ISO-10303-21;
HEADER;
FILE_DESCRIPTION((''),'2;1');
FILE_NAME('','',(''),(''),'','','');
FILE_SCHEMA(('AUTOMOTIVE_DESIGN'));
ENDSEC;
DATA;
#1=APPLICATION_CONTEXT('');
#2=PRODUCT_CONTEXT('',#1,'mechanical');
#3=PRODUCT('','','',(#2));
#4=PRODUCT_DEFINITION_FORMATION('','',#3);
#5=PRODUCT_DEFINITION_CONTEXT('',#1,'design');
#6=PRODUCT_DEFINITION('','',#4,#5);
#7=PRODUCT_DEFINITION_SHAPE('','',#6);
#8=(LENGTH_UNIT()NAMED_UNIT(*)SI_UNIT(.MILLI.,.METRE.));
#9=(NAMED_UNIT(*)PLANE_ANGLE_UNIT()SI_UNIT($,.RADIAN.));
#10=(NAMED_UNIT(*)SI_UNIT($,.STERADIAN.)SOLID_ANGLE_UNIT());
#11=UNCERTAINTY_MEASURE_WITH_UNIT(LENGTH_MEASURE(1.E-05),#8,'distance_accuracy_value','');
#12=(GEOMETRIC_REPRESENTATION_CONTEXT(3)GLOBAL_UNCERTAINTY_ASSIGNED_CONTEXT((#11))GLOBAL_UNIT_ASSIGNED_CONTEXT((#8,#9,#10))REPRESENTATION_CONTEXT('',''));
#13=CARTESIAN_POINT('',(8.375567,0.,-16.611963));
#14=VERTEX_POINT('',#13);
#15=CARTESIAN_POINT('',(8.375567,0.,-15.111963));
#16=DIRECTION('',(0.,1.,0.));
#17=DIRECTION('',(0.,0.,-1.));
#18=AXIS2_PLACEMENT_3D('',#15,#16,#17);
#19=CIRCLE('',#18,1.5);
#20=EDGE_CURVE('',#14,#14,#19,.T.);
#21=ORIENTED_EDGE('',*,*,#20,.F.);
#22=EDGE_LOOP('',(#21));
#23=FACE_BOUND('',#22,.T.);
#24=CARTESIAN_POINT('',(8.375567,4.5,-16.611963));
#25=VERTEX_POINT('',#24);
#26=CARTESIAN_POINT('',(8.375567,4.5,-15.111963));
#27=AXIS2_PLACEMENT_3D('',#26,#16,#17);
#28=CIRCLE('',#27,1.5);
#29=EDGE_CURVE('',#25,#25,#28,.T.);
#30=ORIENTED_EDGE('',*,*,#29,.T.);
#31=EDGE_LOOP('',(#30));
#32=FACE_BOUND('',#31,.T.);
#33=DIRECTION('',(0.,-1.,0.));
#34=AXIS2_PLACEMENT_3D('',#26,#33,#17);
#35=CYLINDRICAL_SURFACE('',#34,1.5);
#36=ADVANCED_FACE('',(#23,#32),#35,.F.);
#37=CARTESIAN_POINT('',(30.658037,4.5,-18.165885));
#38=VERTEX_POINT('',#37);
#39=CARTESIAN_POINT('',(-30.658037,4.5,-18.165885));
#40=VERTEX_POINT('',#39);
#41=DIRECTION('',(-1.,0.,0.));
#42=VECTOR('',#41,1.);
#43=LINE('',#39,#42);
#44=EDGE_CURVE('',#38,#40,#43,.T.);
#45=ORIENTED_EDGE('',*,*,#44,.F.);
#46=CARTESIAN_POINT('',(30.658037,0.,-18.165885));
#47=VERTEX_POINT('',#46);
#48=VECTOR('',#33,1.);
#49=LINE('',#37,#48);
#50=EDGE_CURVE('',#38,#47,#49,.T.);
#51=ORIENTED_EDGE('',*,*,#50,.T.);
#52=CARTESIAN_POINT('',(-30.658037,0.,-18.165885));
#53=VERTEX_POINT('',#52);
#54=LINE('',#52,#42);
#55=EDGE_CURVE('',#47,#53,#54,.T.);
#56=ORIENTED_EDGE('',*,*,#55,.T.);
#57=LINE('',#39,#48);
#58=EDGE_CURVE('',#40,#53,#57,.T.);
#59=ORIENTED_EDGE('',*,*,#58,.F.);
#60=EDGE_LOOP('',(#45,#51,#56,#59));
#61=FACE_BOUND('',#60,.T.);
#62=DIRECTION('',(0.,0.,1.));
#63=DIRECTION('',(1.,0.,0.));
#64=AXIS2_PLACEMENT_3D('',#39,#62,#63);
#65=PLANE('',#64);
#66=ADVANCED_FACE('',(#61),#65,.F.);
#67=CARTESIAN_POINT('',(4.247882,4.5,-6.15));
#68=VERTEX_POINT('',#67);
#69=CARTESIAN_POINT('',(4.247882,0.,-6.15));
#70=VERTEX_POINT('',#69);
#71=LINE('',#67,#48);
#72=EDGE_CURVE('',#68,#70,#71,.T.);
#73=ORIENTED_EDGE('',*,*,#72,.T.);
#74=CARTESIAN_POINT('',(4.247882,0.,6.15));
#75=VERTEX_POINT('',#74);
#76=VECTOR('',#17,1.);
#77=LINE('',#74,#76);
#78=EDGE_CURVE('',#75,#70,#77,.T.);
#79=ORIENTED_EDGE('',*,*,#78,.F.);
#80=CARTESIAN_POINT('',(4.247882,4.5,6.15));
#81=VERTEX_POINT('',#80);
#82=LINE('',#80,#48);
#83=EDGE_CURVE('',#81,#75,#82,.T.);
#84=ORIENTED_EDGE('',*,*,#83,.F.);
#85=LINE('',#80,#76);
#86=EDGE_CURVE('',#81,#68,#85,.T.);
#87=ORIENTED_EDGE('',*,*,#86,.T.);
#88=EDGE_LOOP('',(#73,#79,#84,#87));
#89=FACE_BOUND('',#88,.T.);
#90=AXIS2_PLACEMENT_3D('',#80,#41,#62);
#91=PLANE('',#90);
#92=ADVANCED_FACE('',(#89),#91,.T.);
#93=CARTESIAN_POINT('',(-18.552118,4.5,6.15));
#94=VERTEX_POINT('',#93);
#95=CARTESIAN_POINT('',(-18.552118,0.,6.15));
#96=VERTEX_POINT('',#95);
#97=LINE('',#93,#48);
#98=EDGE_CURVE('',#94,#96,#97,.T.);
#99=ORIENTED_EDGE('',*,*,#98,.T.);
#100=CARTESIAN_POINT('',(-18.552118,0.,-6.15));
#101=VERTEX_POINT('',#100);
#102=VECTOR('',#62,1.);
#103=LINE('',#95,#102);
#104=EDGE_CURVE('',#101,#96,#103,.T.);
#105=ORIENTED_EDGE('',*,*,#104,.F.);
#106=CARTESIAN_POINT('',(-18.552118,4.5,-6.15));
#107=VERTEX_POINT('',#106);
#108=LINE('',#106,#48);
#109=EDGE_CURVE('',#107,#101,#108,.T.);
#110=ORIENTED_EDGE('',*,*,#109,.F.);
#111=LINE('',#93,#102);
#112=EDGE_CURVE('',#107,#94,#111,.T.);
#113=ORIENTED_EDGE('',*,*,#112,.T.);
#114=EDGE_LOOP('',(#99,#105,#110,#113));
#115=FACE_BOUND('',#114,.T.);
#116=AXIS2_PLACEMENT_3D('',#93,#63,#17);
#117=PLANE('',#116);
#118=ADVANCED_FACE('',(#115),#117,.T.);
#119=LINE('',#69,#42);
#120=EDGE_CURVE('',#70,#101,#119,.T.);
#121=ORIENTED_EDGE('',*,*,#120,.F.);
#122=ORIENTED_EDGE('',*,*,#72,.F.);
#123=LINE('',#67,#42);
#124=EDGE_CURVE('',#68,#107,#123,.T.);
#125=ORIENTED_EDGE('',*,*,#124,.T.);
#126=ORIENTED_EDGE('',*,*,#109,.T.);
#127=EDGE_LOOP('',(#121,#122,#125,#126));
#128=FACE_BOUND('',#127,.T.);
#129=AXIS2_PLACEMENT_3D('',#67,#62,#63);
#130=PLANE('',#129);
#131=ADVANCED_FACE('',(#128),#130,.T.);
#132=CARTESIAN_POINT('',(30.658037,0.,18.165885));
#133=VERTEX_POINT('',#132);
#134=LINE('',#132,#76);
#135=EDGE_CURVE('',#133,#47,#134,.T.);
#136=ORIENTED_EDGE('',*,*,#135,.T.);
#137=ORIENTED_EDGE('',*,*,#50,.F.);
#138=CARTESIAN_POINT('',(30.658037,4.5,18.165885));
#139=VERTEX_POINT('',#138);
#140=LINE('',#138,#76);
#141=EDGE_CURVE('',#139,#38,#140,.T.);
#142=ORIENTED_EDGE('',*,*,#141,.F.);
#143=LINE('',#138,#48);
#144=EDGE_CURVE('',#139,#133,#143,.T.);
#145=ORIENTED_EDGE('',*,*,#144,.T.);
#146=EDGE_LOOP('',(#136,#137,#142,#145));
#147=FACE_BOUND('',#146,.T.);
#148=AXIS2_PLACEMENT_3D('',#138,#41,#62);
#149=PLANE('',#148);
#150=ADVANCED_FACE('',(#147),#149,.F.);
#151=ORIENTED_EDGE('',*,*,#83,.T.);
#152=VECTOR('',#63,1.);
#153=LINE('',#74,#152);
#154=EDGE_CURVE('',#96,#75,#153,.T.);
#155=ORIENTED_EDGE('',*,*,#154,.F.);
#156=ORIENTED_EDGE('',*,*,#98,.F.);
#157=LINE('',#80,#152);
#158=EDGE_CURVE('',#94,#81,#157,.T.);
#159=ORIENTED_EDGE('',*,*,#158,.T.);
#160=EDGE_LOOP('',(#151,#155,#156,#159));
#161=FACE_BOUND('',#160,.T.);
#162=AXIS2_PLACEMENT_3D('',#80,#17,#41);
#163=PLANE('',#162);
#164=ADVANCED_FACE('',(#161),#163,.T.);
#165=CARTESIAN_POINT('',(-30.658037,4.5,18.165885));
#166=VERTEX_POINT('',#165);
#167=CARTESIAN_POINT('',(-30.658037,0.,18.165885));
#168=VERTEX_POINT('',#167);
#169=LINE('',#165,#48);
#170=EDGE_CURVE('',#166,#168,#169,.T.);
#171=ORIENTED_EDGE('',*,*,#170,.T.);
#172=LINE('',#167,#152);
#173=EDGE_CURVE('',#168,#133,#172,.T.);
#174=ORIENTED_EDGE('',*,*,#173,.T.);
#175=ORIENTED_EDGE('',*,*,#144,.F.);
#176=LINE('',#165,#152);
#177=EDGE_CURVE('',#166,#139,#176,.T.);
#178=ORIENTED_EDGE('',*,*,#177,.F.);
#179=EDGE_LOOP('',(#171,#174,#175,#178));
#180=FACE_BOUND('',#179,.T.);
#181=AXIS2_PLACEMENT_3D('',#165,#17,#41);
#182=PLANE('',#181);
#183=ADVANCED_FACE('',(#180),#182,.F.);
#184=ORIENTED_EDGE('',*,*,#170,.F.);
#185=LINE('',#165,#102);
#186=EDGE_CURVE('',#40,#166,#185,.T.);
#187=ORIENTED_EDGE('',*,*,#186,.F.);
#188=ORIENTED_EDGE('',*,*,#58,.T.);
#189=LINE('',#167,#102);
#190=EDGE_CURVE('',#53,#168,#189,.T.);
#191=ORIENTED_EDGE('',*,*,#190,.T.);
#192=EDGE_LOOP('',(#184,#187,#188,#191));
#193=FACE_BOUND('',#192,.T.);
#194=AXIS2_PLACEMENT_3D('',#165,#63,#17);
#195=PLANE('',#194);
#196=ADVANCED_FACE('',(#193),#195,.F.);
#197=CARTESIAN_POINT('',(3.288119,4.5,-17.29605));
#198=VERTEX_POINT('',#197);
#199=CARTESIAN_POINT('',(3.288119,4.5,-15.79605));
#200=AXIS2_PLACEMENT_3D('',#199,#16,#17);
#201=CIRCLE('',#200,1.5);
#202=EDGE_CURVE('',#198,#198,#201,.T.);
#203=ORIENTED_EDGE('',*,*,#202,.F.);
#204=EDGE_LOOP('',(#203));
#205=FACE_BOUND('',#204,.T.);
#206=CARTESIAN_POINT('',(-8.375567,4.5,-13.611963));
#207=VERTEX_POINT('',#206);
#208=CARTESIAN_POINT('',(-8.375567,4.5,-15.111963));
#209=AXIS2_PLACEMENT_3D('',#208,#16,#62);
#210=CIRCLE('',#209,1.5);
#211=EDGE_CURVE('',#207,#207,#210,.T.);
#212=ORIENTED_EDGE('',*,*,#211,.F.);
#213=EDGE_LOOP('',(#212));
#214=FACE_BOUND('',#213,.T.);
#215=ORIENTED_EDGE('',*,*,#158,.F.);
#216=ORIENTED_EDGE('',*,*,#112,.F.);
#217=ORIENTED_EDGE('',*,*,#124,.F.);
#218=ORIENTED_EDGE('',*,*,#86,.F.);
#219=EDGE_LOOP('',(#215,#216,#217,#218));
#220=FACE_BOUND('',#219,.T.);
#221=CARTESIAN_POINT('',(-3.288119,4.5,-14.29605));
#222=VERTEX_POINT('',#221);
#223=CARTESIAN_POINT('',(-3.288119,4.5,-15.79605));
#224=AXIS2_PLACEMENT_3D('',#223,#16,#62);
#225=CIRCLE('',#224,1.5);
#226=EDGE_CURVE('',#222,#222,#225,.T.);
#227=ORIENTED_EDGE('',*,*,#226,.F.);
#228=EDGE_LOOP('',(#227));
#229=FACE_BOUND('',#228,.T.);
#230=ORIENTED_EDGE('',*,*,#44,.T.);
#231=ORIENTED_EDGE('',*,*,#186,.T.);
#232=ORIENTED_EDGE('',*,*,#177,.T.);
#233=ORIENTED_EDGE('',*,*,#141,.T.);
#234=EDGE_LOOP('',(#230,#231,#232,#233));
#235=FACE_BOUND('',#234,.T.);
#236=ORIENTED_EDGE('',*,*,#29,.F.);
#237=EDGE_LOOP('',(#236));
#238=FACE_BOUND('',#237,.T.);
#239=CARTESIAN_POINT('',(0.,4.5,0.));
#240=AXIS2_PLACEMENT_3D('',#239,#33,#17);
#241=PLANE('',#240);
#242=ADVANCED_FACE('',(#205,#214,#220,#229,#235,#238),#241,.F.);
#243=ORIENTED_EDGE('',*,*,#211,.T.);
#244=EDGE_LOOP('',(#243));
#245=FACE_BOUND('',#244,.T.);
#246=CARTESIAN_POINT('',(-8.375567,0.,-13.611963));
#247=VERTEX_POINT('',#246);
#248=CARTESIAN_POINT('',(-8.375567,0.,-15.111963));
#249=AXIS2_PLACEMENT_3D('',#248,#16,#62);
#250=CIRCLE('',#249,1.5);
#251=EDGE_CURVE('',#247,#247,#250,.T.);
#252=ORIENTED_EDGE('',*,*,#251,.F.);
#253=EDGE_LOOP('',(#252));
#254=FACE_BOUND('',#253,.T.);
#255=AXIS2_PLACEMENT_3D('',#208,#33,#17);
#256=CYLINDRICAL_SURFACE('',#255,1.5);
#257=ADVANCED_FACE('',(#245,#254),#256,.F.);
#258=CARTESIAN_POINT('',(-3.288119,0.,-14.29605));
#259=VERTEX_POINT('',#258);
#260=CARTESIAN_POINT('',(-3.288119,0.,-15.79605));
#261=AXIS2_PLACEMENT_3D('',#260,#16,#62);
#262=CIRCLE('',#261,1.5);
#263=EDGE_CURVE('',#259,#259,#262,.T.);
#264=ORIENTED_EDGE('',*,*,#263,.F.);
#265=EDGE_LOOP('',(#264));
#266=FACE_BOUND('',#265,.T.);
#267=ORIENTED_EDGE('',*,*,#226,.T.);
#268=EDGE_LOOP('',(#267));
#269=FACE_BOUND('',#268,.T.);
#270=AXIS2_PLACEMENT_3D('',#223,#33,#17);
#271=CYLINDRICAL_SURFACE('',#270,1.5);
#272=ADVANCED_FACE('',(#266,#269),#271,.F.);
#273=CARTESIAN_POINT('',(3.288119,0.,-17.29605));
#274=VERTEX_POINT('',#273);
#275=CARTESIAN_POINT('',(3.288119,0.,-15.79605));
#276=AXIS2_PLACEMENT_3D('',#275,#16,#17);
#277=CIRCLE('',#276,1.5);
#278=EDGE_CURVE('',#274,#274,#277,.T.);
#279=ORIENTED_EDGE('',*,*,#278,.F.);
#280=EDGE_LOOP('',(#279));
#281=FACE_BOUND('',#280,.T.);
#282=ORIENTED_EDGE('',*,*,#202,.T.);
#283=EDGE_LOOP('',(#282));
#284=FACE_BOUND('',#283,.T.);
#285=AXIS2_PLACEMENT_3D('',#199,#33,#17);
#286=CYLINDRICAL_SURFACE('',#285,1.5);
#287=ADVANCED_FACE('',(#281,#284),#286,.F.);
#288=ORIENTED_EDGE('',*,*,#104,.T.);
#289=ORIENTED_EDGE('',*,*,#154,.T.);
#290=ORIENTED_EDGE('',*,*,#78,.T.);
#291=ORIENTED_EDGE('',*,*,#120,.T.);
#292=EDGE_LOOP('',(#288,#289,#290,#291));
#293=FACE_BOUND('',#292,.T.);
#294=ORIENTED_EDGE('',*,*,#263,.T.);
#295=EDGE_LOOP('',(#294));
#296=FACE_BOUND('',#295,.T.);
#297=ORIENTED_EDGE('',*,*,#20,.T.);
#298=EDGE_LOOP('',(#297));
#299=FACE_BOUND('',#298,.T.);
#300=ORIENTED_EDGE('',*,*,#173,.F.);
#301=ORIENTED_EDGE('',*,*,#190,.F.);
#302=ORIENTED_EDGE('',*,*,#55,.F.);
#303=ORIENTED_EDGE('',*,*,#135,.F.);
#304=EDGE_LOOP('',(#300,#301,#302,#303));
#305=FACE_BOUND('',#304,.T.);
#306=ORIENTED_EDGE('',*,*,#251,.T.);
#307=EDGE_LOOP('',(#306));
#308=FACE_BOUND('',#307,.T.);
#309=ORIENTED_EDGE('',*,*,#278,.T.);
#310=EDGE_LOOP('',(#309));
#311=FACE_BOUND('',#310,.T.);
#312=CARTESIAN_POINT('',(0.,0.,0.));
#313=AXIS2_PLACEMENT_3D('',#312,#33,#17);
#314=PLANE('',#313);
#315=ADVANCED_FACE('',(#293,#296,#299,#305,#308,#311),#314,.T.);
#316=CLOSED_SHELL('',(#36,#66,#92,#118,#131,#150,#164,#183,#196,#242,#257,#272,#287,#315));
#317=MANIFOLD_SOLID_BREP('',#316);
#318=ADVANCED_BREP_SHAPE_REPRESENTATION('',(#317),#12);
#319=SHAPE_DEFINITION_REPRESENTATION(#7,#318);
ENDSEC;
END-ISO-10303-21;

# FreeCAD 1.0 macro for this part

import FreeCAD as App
import Part
import Sketcher

doc = App.newDocument("Part")
body = doc.addObject("PartDesign::Body", "Body")

# Sketch on XZ plane
sketch1 = body.newObject("Sketcher::SketchObject", "Sketch")
sketch1.AttachmentSupport = (doc.getObject("XZ_Plane"), [""])
sketch1.MapMode = "FlatFace"
sketch1.addGeometry([
    Part.LineSegment(App.Vector(-30.7, -18.2, 0), App.Vector(-30.7, 18.2, 0)),  # 0
    Part.LineSegment(App.Vector(-30.7, 18.2, 0), App.Vector(30.7, 18.2, 0)),  # 1
    Part.LineSegment(App.Vector(30.7, 18.2, 0), App.Vector(30.7, -18.2, 0)),  # 2
    Part.LineSegment(App.Vector(30.7, -18.2, 0), App.Vector(-30.7, -18.2, 0)),  # 3
    Part.LineSegment(App.Vector(4.2, 6.2, 0), App.Vector(-18.6, 6.2, 0)),  # 4
    Part.LineSegment(App.Vector(-18.6, 6.2, 0), App.Vector(-18.6, -6.2, 0)),  # 5
    Part.LineSegment(App.Vector(-18.6, -6.2, 0), App.Vector(4.2, -6.2, 0)),  # 6
    Part.LineSegment(App.Vector(4.2, -6.2, 0), App.Vector(4.2, 6.2, 0)),  # 7
    Part.Circle(App.Vector(-8.4, -15.1, 0), App.Vector(0, 0, 1), 1.5),  # 8
    Part.Circle(App.Vector(-3.3, -15.8, 0), App.Vector(0, 0, 1), 1.5),  # 9
    Part.Circle(App.Vector(3.3, -15.8, 0), App.Vector(0, 0, 1), 1.5),  # 10
    Part.Circle(App.Vector(8.4, -15.1, 0), App.Vector(0, 0, 1), 1.5),  # 11
], False)
sketch1.addConstraint([
    Sketcher.Constraint("Coincident", 0, 2, 1, 1),
    Sketcher.Constraint("Coincident", 1, 2, 2, 1),
    Sketcher.Constraint("Coincident", 2, 2, 3, 1),
    Sketcher.Constraint("Coincident", 3, 2, 0, 1),
    Sketcher.Constraint("Coincident", 4, 2, 5, 1),
    Sketcher.Constraint("Coincident", 5, 2, 6, 1),
    Sketcher.Constraint("Coincident", 6, 2, 7, 1),
    Sketcher.Constraint("Coincident", 7, 2, 4, 1),
    Sketcher.Constraint("Vertical", 0),
    Sketcher.Constraint("Horizontal", 1),
    Sketcher.Constraint("Vertical", 2),
    Sketcher.Constraint("Horizontal", 3),
    Sketcher.Constraint("Horizontal", 4),
    Sketcher.Constraint("Vertical", 5),
    Sketcher.Constraint("Horizontal", 6),
    Sketcher.Constraint("Vertical", 7),
    Sketcher.Constraint("Equal", 8, 9),
    Sketcher.Constraint("Equal", 9, 10),
    Sketcher.Constraint("Equal", 10, 11),
    Sketcher.Constraint("Symmetric", 0, 2, 2, 2, -1, 1),
    Sketcher.Constraint("Symmetric", 9, 3, 10, 3, -2),
    Sketcher.Constraint("Symmetric", 8, 3, 11, 3, -2),
    Sketcher.Constraint("Diameter", 8, 3.0),
    Sketcher.Constraint("DistanceX", 4, 2, 4, 1, 22.8),
    Sketcher.Constraint("DistanceY", 5, 2, 5, 1, 12.3),
    Sketcher.Constraint("DistanceY", -1, 1, 4, 2, 6.15),
    Sketcher.Constraint("DistanceX", 4, 2, 9, 3, 15.263999),
    Sketcher.Constraint("DistanceY", 0, 1, 0, 2, 36.331769),
    Sketcher.Constraint("DistanceX", 1, 1, 1, 2, 61.316073),
    Sketcher.Constraint("DistanceX", 9, 3, -1, 1, 3.288119),
    Sketcher.Constraint("DistanceY", 9, 3, -1, 1, 15.79605),
    Sketcher.Constraint("DistanceX", 0, 2, 8, 3, 22.28247),
    Sketcher.Constraint("DistanceY", 8, 3, 0, 2, 33.277848),
])
pad1 = body.newObject("PartDesign::Pad", "Pad")
pad1.Profile = sketch1
pad1.Length = 4.5
pad1.Reversed = True

doc.recompute()
